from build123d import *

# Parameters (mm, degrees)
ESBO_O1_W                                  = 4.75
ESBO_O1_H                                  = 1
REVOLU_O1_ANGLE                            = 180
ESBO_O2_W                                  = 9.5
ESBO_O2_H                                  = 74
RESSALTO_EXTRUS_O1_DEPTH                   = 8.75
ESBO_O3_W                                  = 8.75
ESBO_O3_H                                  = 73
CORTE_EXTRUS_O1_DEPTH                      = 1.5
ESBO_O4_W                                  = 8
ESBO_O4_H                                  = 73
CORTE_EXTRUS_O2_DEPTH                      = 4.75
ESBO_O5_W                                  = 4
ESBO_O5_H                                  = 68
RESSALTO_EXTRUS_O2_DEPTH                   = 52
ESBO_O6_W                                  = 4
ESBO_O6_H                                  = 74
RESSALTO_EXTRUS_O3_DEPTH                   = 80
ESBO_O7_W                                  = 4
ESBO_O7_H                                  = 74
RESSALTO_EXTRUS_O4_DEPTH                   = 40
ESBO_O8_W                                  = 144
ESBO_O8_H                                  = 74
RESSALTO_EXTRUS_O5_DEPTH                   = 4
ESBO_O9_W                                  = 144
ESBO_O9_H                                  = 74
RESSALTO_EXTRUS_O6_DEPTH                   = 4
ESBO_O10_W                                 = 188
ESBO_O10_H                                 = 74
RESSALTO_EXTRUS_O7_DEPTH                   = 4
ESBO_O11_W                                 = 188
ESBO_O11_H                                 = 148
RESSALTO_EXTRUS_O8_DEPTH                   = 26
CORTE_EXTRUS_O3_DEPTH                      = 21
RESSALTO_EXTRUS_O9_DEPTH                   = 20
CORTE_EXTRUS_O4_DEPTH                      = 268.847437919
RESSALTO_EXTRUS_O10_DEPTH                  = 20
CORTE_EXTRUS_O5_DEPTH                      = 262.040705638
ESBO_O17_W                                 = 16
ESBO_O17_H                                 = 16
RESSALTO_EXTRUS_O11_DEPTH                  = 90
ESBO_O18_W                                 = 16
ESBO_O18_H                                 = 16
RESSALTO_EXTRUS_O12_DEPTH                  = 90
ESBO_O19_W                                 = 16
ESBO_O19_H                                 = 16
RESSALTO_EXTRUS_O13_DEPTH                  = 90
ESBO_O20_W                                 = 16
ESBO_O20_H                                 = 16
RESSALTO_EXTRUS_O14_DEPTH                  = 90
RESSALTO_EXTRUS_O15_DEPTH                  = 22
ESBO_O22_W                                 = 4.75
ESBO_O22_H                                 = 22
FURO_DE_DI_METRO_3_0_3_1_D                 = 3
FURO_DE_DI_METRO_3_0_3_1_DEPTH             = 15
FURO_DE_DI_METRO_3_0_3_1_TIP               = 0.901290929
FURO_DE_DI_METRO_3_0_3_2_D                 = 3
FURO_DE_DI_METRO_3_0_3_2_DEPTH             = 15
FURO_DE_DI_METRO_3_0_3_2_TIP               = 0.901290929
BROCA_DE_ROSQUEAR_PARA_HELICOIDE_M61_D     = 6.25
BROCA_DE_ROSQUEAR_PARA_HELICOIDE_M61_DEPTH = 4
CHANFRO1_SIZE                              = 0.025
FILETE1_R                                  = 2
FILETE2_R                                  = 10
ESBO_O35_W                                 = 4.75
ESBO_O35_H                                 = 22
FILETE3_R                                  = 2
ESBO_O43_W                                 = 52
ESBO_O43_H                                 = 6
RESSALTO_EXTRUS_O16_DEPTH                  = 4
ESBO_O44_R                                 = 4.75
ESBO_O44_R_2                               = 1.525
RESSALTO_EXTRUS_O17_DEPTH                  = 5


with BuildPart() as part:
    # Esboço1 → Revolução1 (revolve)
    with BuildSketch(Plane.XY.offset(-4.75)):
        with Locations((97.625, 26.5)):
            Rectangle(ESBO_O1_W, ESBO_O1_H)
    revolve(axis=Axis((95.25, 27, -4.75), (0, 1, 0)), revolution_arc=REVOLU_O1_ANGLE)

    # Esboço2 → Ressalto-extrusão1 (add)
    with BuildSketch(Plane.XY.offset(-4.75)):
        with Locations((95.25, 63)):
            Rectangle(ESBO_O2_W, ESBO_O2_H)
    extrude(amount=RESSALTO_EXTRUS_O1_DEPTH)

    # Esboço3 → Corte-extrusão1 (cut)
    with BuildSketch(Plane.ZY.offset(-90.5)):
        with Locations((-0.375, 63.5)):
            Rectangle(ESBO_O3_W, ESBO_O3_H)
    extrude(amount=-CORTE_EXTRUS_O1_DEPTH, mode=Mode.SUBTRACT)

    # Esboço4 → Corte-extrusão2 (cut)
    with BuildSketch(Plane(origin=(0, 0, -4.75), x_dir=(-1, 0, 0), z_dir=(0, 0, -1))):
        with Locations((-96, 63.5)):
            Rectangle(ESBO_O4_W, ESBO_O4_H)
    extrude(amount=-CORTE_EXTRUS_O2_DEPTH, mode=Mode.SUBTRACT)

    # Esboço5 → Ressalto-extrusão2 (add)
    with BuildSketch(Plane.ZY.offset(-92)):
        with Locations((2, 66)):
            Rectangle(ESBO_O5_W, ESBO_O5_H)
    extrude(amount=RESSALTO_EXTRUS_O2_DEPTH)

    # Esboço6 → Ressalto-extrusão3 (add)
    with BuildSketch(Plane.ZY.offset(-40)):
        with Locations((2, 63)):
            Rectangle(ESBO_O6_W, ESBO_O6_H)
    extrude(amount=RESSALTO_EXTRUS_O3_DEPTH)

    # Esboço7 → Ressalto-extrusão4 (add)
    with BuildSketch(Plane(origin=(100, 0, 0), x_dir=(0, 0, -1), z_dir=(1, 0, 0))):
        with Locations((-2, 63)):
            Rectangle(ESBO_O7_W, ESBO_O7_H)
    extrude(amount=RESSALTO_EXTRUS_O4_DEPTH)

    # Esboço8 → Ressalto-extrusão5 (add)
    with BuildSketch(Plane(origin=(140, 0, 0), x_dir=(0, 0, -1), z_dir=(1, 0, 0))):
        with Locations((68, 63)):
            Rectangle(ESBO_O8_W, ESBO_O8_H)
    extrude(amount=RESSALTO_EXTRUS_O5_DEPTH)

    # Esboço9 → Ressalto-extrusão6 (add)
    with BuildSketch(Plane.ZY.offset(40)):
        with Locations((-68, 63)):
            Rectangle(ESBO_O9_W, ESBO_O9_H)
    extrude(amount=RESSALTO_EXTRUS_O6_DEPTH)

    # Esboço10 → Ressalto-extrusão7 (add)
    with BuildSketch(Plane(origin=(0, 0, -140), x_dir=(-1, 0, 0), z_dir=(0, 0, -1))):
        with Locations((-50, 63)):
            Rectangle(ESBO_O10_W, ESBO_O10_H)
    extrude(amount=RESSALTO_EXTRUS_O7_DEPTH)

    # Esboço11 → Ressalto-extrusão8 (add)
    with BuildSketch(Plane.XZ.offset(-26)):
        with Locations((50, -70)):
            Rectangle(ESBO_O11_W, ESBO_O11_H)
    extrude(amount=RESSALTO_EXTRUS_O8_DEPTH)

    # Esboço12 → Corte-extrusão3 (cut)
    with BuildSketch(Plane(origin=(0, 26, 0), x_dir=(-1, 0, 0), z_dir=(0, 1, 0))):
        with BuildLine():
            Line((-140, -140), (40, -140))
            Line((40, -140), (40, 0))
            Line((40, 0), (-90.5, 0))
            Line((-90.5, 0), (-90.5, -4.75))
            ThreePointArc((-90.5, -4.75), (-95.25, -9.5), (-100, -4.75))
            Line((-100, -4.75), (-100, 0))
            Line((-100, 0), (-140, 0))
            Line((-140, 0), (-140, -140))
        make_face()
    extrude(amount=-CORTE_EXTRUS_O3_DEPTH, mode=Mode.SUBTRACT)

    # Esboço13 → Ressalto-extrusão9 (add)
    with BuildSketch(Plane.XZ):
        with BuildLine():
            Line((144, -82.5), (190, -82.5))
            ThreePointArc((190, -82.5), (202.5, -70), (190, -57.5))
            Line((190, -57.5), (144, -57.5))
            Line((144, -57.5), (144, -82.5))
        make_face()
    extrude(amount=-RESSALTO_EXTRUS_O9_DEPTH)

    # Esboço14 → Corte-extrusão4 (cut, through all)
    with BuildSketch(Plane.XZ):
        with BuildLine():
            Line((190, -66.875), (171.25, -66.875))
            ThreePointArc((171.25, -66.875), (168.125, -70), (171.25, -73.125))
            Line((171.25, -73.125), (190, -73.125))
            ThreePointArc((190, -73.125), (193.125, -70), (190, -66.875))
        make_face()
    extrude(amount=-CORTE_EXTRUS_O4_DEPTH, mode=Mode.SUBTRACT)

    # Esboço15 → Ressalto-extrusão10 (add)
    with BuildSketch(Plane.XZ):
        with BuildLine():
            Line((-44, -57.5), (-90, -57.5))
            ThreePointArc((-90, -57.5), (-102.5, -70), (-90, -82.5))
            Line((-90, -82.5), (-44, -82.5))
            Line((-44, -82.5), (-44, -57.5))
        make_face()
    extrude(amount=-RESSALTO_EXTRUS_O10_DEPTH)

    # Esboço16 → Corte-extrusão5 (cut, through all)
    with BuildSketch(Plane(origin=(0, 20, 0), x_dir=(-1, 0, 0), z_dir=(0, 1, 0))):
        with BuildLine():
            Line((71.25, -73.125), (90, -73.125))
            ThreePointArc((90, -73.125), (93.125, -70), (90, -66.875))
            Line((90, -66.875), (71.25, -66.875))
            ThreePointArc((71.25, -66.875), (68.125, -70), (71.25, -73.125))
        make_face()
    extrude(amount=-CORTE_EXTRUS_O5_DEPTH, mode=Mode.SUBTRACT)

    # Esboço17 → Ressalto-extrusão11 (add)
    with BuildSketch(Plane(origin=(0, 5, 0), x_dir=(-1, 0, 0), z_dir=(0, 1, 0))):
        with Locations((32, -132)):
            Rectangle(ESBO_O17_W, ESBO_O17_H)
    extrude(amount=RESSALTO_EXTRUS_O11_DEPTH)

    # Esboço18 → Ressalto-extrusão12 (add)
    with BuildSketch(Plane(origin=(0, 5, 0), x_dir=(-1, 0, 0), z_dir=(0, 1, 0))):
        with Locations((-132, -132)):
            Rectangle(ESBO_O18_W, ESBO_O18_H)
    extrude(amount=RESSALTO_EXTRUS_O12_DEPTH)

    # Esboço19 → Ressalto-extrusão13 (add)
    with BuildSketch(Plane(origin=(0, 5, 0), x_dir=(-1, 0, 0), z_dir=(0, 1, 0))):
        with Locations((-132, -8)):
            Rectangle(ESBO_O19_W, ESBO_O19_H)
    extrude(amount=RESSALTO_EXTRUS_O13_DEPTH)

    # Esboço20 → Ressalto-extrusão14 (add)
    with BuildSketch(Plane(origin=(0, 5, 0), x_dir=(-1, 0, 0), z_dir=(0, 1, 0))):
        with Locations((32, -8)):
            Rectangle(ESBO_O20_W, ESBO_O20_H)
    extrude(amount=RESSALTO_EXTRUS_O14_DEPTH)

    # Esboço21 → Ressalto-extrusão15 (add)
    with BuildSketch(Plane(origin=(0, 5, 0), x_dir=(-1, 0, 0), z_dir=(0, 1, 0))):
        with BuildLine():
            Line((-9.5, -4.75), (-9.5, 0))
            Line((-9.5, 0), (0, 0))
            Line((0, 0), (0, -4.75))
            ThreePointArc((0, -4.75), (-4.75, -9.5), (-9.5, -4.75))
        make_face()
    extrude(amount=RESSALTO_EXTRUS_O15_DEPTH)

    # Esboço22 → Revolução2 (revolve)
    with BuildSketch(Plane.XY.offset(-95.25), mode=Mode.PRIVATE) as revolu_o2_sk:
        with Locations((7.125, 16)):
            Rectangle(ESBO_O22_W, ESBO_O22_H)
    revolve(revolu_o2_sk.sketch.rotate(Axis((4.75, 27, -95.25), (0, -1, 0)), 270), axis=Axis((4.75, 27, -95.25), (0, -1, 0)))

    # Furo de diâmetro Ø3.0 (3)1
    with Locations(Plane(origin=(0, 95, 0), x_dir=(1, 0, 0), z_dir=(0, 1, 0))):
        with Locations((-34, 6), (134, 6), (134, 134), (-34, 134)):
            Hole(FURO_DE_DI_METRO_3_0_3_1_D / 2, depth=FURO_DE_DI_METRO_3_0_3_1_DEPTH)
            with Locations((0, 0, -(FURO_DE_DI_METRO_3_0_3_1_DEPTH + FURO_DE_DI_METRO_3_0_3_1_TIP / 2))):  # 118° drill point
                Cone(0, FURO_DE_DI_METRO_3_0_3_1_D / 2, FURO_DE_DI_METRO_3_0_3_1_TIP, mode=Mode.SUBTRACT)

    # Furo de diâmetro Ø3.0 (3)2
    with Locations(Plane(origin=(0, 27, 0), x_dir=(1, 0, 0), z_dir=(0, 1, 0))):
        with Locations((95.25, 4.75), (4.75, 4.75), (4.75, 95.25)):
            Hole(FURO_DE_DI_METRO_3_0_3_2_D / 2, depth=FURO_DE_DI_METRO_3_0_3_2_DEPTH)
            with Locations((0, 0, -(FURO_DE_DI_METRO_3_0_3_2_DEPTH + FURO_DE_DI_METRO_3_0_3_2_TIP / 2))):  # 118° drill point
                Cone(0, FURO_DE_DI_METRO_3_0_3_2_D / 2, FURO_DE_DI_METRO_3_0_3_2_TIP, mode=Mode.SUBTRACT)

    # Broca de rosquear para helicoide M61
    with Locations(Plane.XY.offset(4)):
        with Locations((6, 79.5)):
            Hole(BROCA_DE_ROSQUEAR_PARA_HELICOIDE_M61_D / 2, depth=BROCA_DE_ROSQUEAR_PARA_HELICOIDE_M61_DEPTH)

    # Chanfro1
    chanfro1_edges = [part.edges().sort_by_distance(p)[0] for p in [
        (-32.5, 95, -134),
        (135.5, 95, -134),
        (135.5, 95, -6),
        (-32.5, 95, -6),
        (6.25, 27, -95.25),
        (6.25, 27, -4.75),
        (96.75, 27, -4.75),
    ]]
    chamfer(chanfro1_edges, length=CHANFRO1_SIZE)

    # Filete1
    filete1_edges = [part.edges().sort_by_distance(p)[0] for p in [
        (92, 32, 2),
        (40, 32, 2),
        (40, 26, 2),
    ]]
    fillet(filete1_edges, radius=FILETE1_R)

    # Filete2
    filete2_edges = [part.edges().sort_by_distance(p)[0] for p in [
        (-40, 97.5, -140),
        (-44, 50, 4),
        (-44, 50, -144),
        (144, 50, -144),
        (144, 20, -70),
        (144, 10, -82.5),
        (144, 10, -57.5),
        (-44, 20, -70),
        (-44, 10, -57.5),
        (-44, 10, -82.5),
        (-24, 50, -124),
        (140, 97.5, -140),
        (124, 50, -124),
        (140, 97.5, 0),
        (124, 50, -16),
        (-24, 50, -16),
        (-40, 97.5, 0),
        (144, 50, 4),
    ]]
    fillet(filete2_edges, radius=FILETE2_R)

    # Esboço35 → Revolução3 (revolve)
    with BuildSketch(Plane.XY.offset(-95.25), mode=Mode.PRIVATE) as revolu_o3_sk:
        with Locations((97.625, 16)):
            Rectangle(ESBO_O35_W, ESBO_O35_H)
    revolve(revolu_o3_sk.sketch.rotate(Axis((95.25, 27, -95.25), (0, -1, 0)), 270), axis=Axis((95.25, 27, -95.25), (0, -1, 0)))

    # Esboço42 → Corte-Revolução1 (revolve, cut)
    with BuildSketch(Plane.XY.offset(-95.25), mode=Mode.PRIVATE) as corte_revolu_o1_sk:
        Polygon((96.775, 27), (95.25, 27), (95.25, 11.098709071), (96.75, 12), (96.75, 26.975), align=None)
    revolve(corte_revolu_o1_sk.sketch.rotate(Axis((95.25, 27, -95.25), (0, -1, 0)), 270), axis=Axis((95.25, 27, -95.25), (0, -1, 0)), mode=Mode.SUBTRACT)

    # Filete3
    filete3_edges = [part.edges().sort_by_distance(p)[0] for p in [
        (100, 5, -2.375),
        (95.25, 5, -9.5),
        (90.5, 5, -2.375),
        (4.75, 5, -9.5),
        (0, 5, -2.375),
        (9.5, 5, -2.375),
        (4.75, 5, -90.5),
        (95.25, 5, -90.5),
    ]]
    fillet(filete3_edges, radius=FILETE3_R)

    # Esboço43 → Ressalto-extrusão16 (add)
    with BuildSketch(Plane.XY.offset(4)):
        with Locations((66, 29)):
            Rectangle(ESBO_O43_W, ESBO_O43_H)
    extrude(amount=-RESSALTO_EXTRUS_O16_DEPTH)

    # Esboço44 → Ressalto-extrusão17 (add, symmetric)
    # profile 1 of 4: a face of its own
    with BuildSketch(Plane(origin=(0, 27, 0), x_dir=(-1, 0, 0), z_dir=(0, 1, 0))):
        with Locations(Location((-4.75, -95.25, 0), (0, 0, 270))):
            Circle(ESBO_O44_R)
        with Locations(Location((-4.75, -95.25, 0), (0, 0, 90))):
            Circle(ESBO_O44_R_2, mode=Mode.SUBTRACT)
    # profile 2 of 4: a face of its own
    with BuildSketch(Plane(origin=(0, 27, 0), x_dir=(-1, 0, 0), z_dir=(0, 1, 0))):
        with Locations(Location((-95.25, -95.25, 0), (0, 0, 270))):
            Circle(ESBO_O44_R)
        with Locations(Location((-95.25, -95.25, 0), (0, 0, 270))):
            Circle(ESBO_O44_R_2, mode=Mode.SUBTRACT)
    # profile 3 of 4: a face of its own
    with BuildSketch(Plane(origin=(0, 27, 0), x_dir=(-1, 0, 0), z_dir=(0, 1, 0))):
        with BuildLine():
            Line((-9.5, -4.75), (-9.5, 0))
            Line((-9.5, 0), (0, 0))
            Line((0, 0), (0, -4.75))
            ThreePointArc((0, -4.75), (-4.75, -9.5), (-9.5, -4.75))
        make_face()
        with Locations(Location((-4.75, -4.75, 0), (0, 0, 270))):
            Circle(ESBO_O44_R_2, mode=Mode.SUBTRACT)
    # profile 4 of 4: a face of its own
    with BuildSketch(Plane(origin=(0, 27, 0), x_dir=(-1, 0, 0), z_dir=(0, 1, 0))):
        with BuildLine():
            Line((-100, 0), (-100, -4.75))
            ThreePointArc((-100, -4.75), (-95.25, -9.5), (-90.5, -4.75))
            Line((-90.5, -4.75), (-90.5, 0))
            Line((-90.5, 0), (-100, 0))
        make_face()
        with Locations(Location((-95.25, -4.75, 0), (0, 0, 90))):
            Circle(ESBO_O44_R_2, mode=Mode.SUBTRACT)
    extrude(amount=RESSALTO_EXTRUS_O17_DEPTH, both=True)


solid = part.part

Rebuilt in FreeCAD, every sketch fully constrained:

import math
import FreeCAD as App
import Part
import Sketcher

V = App.Vector
Q = App.Units.Quantity


def edges_at(feature, points):
    """Names of the edges that pass closest to the given points."""
    edges = feature.Shape.Edges
    near = lambda p: min(range(len(edges)), key=lambda i: edges[i].distToShape(Part.Vertex(*p))[0])
    return sorted({f"Edge{near(p) + 1}" for p in points})

doc = App.newDocument("Part")
body = doc.addObject("PartDesign::Body", "Body")

sketch1 = body.newObject("Sketcher::SketchObject", "Sketch")
sketch1.AttachmentSupport = (doc.getObject("XY_Plane"), [""])
sketch1.MapMode = "FlatFace"
sketch1.AttachmentOffset = App.Placement(V(0, 0, -4.75), App.Rotation())
sketch1.addGeometry([
    Part.LineSegment(V(95.2, 27, 0), V(95.2, 26, 0)),
    Part.LineSegment(V(95.2, 26, 0), V(100, 26, 0)),
    Part.LineSegment(V(100, 26, 0), V(100, 27, 0)),
    Part.LineSegment(V(100, 27, 0), V(95.2, 27, 0)),
], False)
sketch1.addGeometry(Part.LineSegment(V(95.2, 26, 0), V(95.2, 27, 0)), True)
sketch1.addConstraint([
    Sketcher.Constraint("Coincident", 0, 2, 1, 1),
    Sketcher.Constraint("Coincident", 1, 2, 2, 1),
    Sketcher.Constraint("Coincident", 2, 2, 3, 1),
    Sketcher.Constraint("Coincident", 3, 2, 0, 1),
    Sketcher.Constraint("Vertical", 0),
    Sketcher.Constraint("Horizontal", 1),
    Sketcher.Constraint("Vertical", 2),
    Sketcher.Constraint("Horizontal", 3),
    Sketcher.Constraint("Vertical", 4),
    Sketcher.Constraint("Coincident", 4, 1, 0, 2),
    Sketcher.Constraint("Horizontal", 2, 2, 4, 2),
    Sketcher.Constraint("DistanceY", 0, 2, 0, 1, 1.0),
    Sketcher.Constraint("DistanceY", -1, 1, 0, 2, 26.0),
    Sketcher.Constraint("DistanceX", -1, 1, 1, 2, 100.0),
    Sketcher.Constraint("DistanceX", 1, 1, 1, 2, 4.75),
])
revolution = body.newObject("PartDesign::Revolution", "Revolution")
revolution.Profile = sketch1
revolution.ReferenceAxis = (sketch1, ["Axis0"])
revolution.Angle = 180

sketch2 = body.newObject("Sketcher::SketchObject", "Sketch001")
sketch2.AttachmentSupport = (doc.getObject("XY_Plane"), [""])
sketch2.MapMode = "FlatFace"
sketch2.AttachmentOffset = App.Placement(V(0, 0, -4.75), App.Rotation())
sketch2.addGeometry([
    Part.LineSegment(V(90, 100, 0), V(90, 26, 0)),
    Part.LineSegment(V(90, 26, 0), V(100, 26, 0)),
    Part.LineSegment(V(100, 26, 0), V(100, 100, 0)),
    Part.LineSegment(V(100, 100, 0), V(90, 100, 0)),
], False)
sketch2.addConstraint([
    Sketcher.Constraint("Coincident", 0, 2, 1, 1),
    Sketcher.Constraint("Coincident", 1, 2, 2, 1),
    Sketcher.Constraint("Coincident", 2, 2, 3, 1),
    Sketcher.Constraint("Coincident", 3, 2, 0, 1),
    Sketcher.Constraint("Vertical", 0),
    Sketcher.Constraint("Horizontal", 1),
    Sketcher.Constraint("Vertical", 2),
    Sketcher.Constraint("Horizontal", 3),
    Sketcher.Constraint("DistanceY", 0, 2, 0, 1, 74.0),
    Sketcher.Constraint("DistanceX", 1, 1, 1, 2, 9.5),
    Sketcher.Constraint("DistanceY", -1, 1, 0, 2, 26.0),
    Sketcher.Constraint("DistanceX", -1, 1, 1, 2, 100.0),
])
pad1 = body.newObject("PartDesign::Pad", "Pad")
pad1.Profile = sketch2
pad1.Length = 8.75

sketch3 = body.newObject("Sketcher::SketchObject", "Sketch002")
sketch3.AttachmentSupport = (doc.getObject("YZ_Plane"), [""])
sketch3.MapMode = "FlatFace"
sketch3.AttachmentOffset = App.Placement(V(0, 0, 90.5), App.Rotation())
sketch3.addGeometry([
    Part.LineSegment(V(100, -5, 0), V(27, -5, 0)),
    Part.LineSegment(V(27, -5, 0), V(27, 4, 0)),
    Part.LineSegment(V(27, 4, 0), V(100, 4, 0)),
    Part.LineSegment(V(100, 4, 0), V(100, -5, 0)),
], False)
sketch3.addConstraint([
    Sketcher.Constraint("Coincident", 0, 2, 1, 1),
    Sketcher.Constraint("Coincident", 1, 2, 2, 1),
    Sketcher.Constraint("Coincident", 2, 2, 3, 1),
    Sketcher.Constraint("Coincident", 3, 2, 0, 1),
    Sketcher.Constraint("Horizontal", 0),
    Sketcher.Constraint("Vertical", 1),
    Sketcher.Constraint("Horizontal", 2),
    Sketcher.Constraint("Vertical", 3),
    Sketcher.Constraint("DistanceX", 0, 2, 0, 1, 73.0),
    Sketcher.Constraint("DistanceX", -1, 1, 0, 2, 27.0),
    Sketcher.Constraint("DistanceY", -1, 1, 1, 2, 4.0),
    Sketcher.Constraint("DistanceY", 1, 1, 1, 2, 8.75),
])
pocket1 = body.newObject("PartDesign::Pocket", "Pocket")
pocket1.Profile = sketch3
pocket1.Length = 1.5
pocket1.Reversed = True

sketch4 = body.newObject("Sketcher::SketchObject", "Sketch003")
sketch4.AttachmentSupport = (doc.getObject("XY_Plane"), [""])
sketch4.MapMode = "FlatFace"
sketch4.AttachmentOffset = App.Placement(V(0, 0, -4.75), App.Rotation())
sketch4.addGeometry([
    Part.LineSegment(V(100, 100, 0), V(100, 27, 0)),
    Part.LineSegment(V(100, 27, 0), V(92, 27, 0)),
    Part.LineSegment(V(92, 27, 0), V(92, 100, 0)),
    Part.LineSegment(V(92, 100, 0), V(100, 100, 0)),
], False)
sketch4.addConstraint([
    Sketcher.Constraint("Coincident", 0, 2, 1, 1),
    Sketcher.Constraint("Coincident", 1, 2, 2, 1),
    Sketcher.Constraint("Coincident", 2, 2, 3, 1),
    Sketcher.Constraint("Coincident", 3, 2, 0, 1),
    Sketcher.Constraint("Vertical", 0),
    Sketcher.Constraint("Horizontal", 1),
    Sketcher.Constraint("Vertical", 2),
    Sketcher.Constraint("Horizontal", 3),
    Sketcher.Constraint("DistanceX", 1, 2, 1, 1, 8.0),
    Sketcher.Constraint("DistanceY", 0, 2, 0, 1, 73.0),
    Sketcher.Constraint("DistanceX", -1, 1, 0, 2, 100.0),
    Sketcher.Constraint("DistanceY", -1, 1, 0, 2, 27.0),
])
pocket2 = body.newObject("PartDesign::Pocket", "Pocket001")
pocket2.Profile = sketch4
pocket2.Length = 4.75
pocket2.Reversed = True

sketch5 = body.newObject("Sketcher::SketchObject", "Sketch004")
sketch5.AttachmentSupport = (doc.getObject("YZ_Plane"), [""])
sketch5.MapMode = "FlatFace"
sketch5.AttachmentOffset = App.Placement(V(0, 0, 92), App.Rotation())
sketch5.addGeometry([
    Part.LineSegment(V(100, 0, 0), V(32, 0, 0)),
    Part.LineSegment(V(32, 0, 0), V(32, 4, 0)),
    Part.LineSegment(V(32, 4, 0), V(100, 4, 0)),
    Part.LineSegment(V(100, 4, 0), V(100, 0, 0)),
], False)
sketch5.addConstraint([
    Sketcher.Constraint("Coincident", 0, 2, 1, 1),
    Sketcher.Constraint("Coincident", 1, 2, 2, 1),
    Sketcher.Constraint("Coincident", 2, 2, 3, 1),
    Sketcher.Constraint("Coincident", 3, 2, 0, 1),
    Sketcher.Constraint("Horizontal", 0),
    Sketcher.Constraint("Vertical", 1),
    Sketcher.Constraint("Horizontal", 2),
    Sketcher.Constraint("Vertical", 3),
    Sketcher.Constraint("PointOnObject", 0, 2, -1),
    Sketcher.Constraint("DistanceX", 0, 2, 0, 1, 68.0),
    Sketcher.Constraint("DistanceY", 1, 1, 1, 2, 4.0),
    Sketcher.Constraint("DistanceX", -1, 1, 0, 2, 32.0),
])
pad2 = body.newObject("PartDesign::Pad", "Pad001")
pad2.Profile = sketch5
pad2.Length = 52
pad2.Reversed = True

sketch6 = body.newObject("Sketcher::SketchObject", "Sketch005")
sketch6.AttachmentSupport = (doc.getObject("YZ_Plane"), [""])
sketch6.MapMode = "FlatFace"
sketch6.AttachmentOffset = App.Placement(V(0, 0, 40), App.Rotation())
sketch6.addGeometry([
    Part.LineSegment(V(100, 0, 0), V(26, 0, 0)),
    Part.LineSegment(V(26, 0, 0), V(26, 4, 0)),
    Part.LineSegment(V(26, 4, 0), V(100, 4, 0)),
    Part.LineSegment(V(100, 4, 0), V(100, 0, 0)),
], False)
sketch6.addConstraint([
    Sketcher.Constraint("Coincident", 0, 2, 1, 1),
    Sketcher.Constraint("Coincident", 1, 2, 2, 1),
    Sketcher.Constraint("Coincident", 2, 2, 3, 1),
    Sketcher.Constraint("Coincident", 3, 2, 0, 1),
    Sketcher.Constraint("Horizontal", 0),
    Sketcher.Constraint("Vertical", 1),
    Sketcher.Constraint("Horizontal", 2),
    Sketcher.Constraint("Vertical", 3),
    Sketcher.Constraint("PointOnObject", 0, 2, -1),
    Sketcher.Constraint("DistanceX", 0, 2, 0, 1, 74.0),
    Sketcher.Constraint("DistanceY", 1, 1, 1, 2, 4.0),
    Sketcher.Constraint("DistanceX", -1, 1, 0, 2, 26.0),
])
pad3 = body.newObject("PartDesign::Pad", "Pad002")
pad3.Profile = sketch6
pad3.Length = 80
pad3.Reversed = True

sketch7 = body.newObject("Sketcher::SketchObject", "Sketch006")
sketch7.AttachmentSupport = (doc.getObject("YZ_Plane"), [""])
sketch7.MapMode = "FlatFace"
sketch7.AttachmentOffset = App.Placement(V(0, 0, 100), App.Rotation())
sketch7.addGeometry([
    Part.LineSegment(V(100, 4, 0), V(26, 4, 0)),
    Part.LineSegment(V(26, 4, 0), V(26, 0, 0)),
    Part.LineSegment(V(26, 0, 0), V(100, 0, 0)),
    Part.LineSegment(V(100, 0, 0), V(100, 4, 0)),
], False)
sketch7.addConstraint([
    Sketcher.Constraint("Coincident", 0, 2, 1, 1),
    Sketcher.Constraint("Coincident", 1, 2, 2, 1),
    Sketcher.Constraint("Coincident", 2, 2, 3, 1),
    Sketcher.Constraint("Coincident", 3, 2, 0, 1),
    Sketcher.Constraint("Horizontal", 0),
    Sketcher.Constraint("Vertical", 1),
    Sketcher.Constraint("Horizontal", 2),
    Sketcher.Constraint("Vertical", 3),
    Sketcher.Constraint("PointOnObject", 1, 2, -1),
    Sketcher.Constraint("DistanceX", 0, 2, 0, 1, 74.0),
    Sketcher.Constraint("DistanceY", 1, 2, 1, 1, 4.0),
    Sketcher.Constraint("DistanceX", -1, 1, 0, 2, 26.0),
])
pad4 = body.newObject("PartDesign::Pad", "Pad003")
pad4.Profile = sketch7
pad4.Length = 40

sketch8 = body.newObject("Sketcher::SketchObject", "Sketch007")
sketch8.AttachmentSupport = (doc.getObject("YZ_Plane"), [""])
sketch8.MapMode = "FlatFace"
sketch8.AttachmentOffset = App.Placement(V(0, 0, 140), App.Rotation())
sketch8.addGeometry([
    Part.LineSegment(V(100, 4, 0), V(26, 4, 0)),
    Part.LineSegment(V(26, 4, 0), V(26, -140, 0)),
    Part.LineSegment(V(26, -140, 0), V(100, -140, 0)),
    Part.LineSegment(V(100, -140, 0), V(100, 4, 0)),
], False)
sketch8.addConstraint([
    Sketcher.Constraint("Coincident", 0, 2, 1, 1),
    Sketcher.Constraint("Coincident", 1, 2, 2, 1),
    Sketcher.Constraint("Coincident", 2, 2, 3, 1),
    Sketcher.Constraint("Coincident", 3, 2, 0, 1),
    Sketcher.Constraint("Horizontal", 0),
    Sketcher.Constraint("Vertical", 1),
    Sketcher.Constraint("Horizontal", 2),
    Sketcher.Constraint("Vertical", 3),
    Sketcher.Constraint("DistanceX", 0, 2, 0, 1, 74.0),
    Sketcher.Constraint("DistanceY", 1, 2, 1, 1, 144.0),
    Sketcher.Constraint("DistanceX", -1, 1, 0, 2, 26.0),
    Sketcher.Constraint("DistanceY", -1, 1, 0, 2, 4.0),
])
pad5 = body.newObject("PartDesign::Pad", "Pad004")
pad5.Profile = sketch8
pad5.Length = 4

sketch9 = body.newObject("Sketcher::SketchObject", "Sketch008")
sketch9.AttachmentSupport = (doc.getObject("YZ_Plane"), [""])
sketch9.MapMode = "FlatFace"
sketch9.AttachmentOffset = App.Placement(V(0, 0, -40), App.Rotation())
sketch9.addGeometry([
    Part.LineSegment(V(100, -140, 0), V(26, -140, 0)),
    Part.LineSegment(V(26, -140, 0), V(26, 4, 0)),
    Part.LineSegment(V(26, 4, 0), V(100, 4, 0)),
    Part.LineSegment(V(100, 4, 0), V(100, -140, 0)),
], False)
sketch9.addConstraint([
    Sketcher.Constraint("Coincident", 0, 2, 1, 1),
    Sketcher.Constraint("Coincident", 1, 2, 2, 1),
    Sketcher.Constraint("Coincident", 2, 2, 3, 1),
    Sketcher.Constraint("Coincident", 3, 2, 0, 1),
    Sketcher.Constraint("Horizontal", 0),
    Sketcher.Constraint("Vertical", 1),
    Sketcher.Constraint("Horizontal", 2),
    Sketcher.Constraint("Vertical", 3),
    Sketcher.Constraint("DistanceX", 0, 2, 0, 1, 74.0),
    Sketcher.Constraint("DistanceY", 1, 1, 1, 2, 144.0),
    Sketcher.Constraint("DistanceX", -1, 1, 0, 2, 26.0),
    Sketcher.Constraint("DistanceY", 0, 2, -1, 1, 140.0),
])
pad6 = body.newObject("PartDesign::Pad", "Pad005")
pad6.Profile = sketch9
pad6.Length = 4
pad6.Reversed = True

sketch10 = body.newObject("Sketcher::SketchObject", "Sketch009")
sketch10.AttachmentSupport = (doc.getObject("XY_Plane"), [""])
sketch10.MapMode = "FlatFace"
sketch10.AttachmentOffset = App.Placement(V(0, 0, -140), App.Rotation())
sketch10.addGeometry([
    Part.LineSegment(V(144, 100, 0), V(144, 26, 0)),
    Part.LineSegment(V(144, 26, 0), V(-44, 26, 0)),
    Part.LineSegment(V(-44, 26, 0), V(-44, 100, 0)),
    Part.LineSegment(V(-44, 100, 0), V(144, 100, 0)),
], False)
sketch10.addConstraint([
    Sketcher.Constraint("Coincident", 0, 2, 1, 1),
    Sketcher.Constraint("Coincident", 1, 2, 2, 1),
    Sketcher.Constraint("Coincident", 2, 2, 3, 1),
    Sketcher.Constraint("Coincident", 3, 2, 0, 1),
    Sketcher.Constraint("Vertical", 0),
    Sketcher.Constraint("Horizontal", 1),
    Sketcher.Constraint("Vertical", 2),
    Sketcher.Constraint("Horizontal", 3),
    Sketcher.Constraint("DistanceX", 1, 2, 1, 1, 188.0),
    Sketcher.Constraint("DistanceY", 0, 2, 0, 1, 74.0),
    Sketcher.Constraint("DistanceX", -1, 1, 0, 2, 144.0),
    Sketcher.Constraint("DistanceY", -1, 1, 0, 2, 26.0),
])
pad7 = body.newObject("PartDesign::Pad", "Pad006")
pad7.Profile = sketch10
pad7.Length = 4
pad7.Reversed = True

sketch11 = body.newObject("Sketcher::SketchObject", "Sketch010")
sketch11.AttachmentSupport = (doc.getObject("XZ_Plane"), [""])
sketch11.MapMode = "FlatFace"
sketch11.AttachmentOffset = App.Placement(V(0, 0, -26), App.Rotation())
sketch11.addGeometry([
    Part.LineSegment(V(-44, 4, 0), V(-44, -144, 0)),
    Part.LineSegment(V(-44, -144, 0), V(144, -144, 0)),
    Part.LineSegment(V(144, -144, 0), V(144, 4, 0)),
    Part.LineSegment(V(144, 4, 0), V(-44, 4, 0)),
], False)
sketch11.addConstraint([
    Sketcher.Constraint("Coincident", 0, 2, 1, 1),
    Sketcher.Constraint("Coincident", 1, 2, 2, 1),
    Sketcher.Constraint("Coincident", 2, 2, 3, 1),
    Sketcher.Constraint("Coincident", 3, 2, 0, 1),
    Sketcher.Constraint("Vertical", 0),
    Sketcher.Constraint("Horizontal", 1),
    Sketcher.Constraint("Vertical", 2),
    Sketcher.Constraint("Horizontal", 3),
    Sketcher.Constraint("DistanceX", 1, 1, 1, 2, 188.0),
    Sketcher.Constraint("DistanceY", 0, 2, 0, 1, 148.0),
    Sketcher.Constraint("DistanceX", 0, 2, -1, 1, 44.0),
    Sketcher.Constraint("DistanceY", 0, 2, -1, 1, 144.0),
])
pad8 = body.newObject("PartDesign::Pad", "Pad007")
pad8.Profile = sketch11
pad8.Length = 26

sketch12 = body.newObject("Sketcher::SketchObject", "Sketch011")
sketch12.AttachmentSupport = (doc.getObject("XZ_Plane"), [""])
sketch12.MapMode = "FlatFace"
sketch12.AttachmentOffset = App.Placement(V(0, 0, -26), App.Rotation())
sketch12.addGeometry([
    Part.LineSegment(V(140, -140, 0), V(-40, -140, 0)),
    Part.LineSegment(V(-40, -140, 0), V(-40, 0, 0)),
    Part.LineSegment(V(-40, 0, 0), V(90.5, 0, 0)),
    Part.LineSegment(V(90.5, 0, 0), V(90.5, -4.8, 0)),
    Part.ArcOfCircle(Part.Circle(V(95.2, -4.8, 0), V(0, 0, 1), 4.8), math.radians(180), math.radians(360)),
    Part.LineSegment(V(100, -4.8, 0), V(100, 0, 0)),
    Part.LineSegment(V(100, 0, 0), V(140, 0, 0)),
    Part.LineSegment(V(140, 0, 0), V(140, -140, 0)),
], False)
sketch12.addConstraint([
    Sketcher.Constraint("Coincident", 0, 2, 1, 1),
    Sketcher.Constraint("Coincident", 1, 2, 2, 1),
    Sketcher.Constraint("Coincident", 2, 2, 3, 1),
    Sketcher.Constraint("Tangent", 3, 2, 4, 1),
    Sketcher.Constraint("Tangent", 4, 2, 5, 1),
    Sketcher.Constraint("Coincident", 5, 2, 6, 1),
    Sketcher.Constraint("Coincident", 6, 2, 7, 1),
    Sketcher.Constraint("Coincident", 7, 2, 0, 1),
    Sketcher.Constraint("Horizontal", 0),
    Sketcher.Constraint("Vertical", 1),
    Sketcher.Constraint("Horizontal", 2),
    Sketcher.Constraint("Vertical", 3),
    Sketcher.Constraint("Vertical", 5),
    Sketcher.Constraint("Horizontal", 6),
    Sketcher.Constraint("Vertical", 7),
    Sketcher.Constraint("PointOnObject", 1, 2, -1),
    Sketcher.Constraint("PointOnObject", 5, 2, -1),
    Sketcher.Constraint("DistanceX", 0, 2, 0, 1, 180.0),
    Sketcher.Constraint("DistanceX", 6, 1, 6, 2, 40.0),
    Sketcher.Constraint("DistanceY", 1, 1, 1, 2, 140.0),
    Sketcher.Constraint("Radius", 4, 4.75),
    Sketcher.Constraint("DistanceX", 0, 2, -1, 1, 40.0),
    Sketcher.Constraint("DistanceY", 3, 2, 3, 1, 4.75),
])
pocket3 = body.newObject("PartDesign::Pocket", "Pocket002")
pocket3.Profile = sketch12
pocket3.Length = 21
pocket3.Reversed = True

sketch13 = body.newObject("Sketcher::SketchObject", "Sketch012")
sketch13.AttachmentSupport = (doc.getObject("XZ_Plane"), [""])
sketch13.MapMode = "FlatFace"
sketch13.addGeometry([
    Part.LineSegment(V(144, -82, 0), V(190, -82, 0)),
    Part.ArcOfCircle(Part.Circle(V(190, -70, 0), V(0, 0, 1), 12), math.radians(-90), math.radians(90)),
    Part.LineSegment(V(190, -58, 0), V(144, -58, 0)),
    Part.LineSegment(V(144, -58, 0), V(144, -82, 0)),
], False)
sketch13.addConstraint([
    Sketcher.Constraint("Tangent", 0, 2, 1, 1),
    Sketcher.Constraint("Tangent", 1, 2, 2, 1),
    Sketcher.Constraint("Coincident", 2, 2, 3, 1),
    Sketcher.Constraint("Coincident", 3, 2, 0, 1),
    Sketcher.Constraint("Horizontal", 0),
    Sketcher.Constraint("Horizontal", 2),
    Sketcher.Constraint("Vertical", 3),
    Sketcher.Constraint("Radius", 1, 12.5),
    Sketcher.Constraint("DistanceX", 0, 1, 0, 2, 46.0),
    Sketcher.Constraint("DistanceX", -1, 1, 1, 3, 190.0),
    Sketcher.Constraint("DistanceY", 1, 3, -1, 1, 70.0),
])
pad9 = body.newObject("PartDesign::Pad", "Pad008")
pad9.Profile = sketch13
pad9.Length = 20
pad9.Reversed = True

sketch14 = body.newObject("Sketcher::SketchObject", "Sketch013")
sketch14.AttachmentSupport = (doc.getObject("XZ_Plane"), [""])
sketch14.MapMode = "FlatFace"
sketch14.addGeometry([
    Part.LineSegment(V(190, -66.9, 0), V(171.2, -66.9, 0)),
    Part.ArcOfCircle(Part.Circle(V(171.2, -70, 0), V(0, 0, 1), 3.1), math.radians(90), math.radians(270)),
    Part.LineSegment(V(171.2, -73.1, 0), V(190, -73.1, 0)),
    Part.ArcOfCircle(Part.Circle(V(190, -70, 0), V(0, 0, 1), 3.1), math.radians(-90), math.radians(90)),
], False)
sketch14.addConstraint([
    Sketcher.Constraint("Tangent", 0, 2, 1, 1),
    Sketcher.Constraint("Tangent", 1, 2, 2, 1),
    Sketcher.Constraint("Tangent", 2, 2, 3, 1),
    Sketcher.Constraint("Tangent", 3, 2, 0, 1),
    Sketcher.Constraint("Horizontal", 0),
    Sketcher.Constraint("Horizontal", 2),
    Sketcher.Constraint("DistanceY", 1, 3, -1, 1, 70.0),
    Sketcher.Constraint("DistanceX", -1, 1, 3, 3, 190.0),
    Sketcher.Constraint("Radius", 1, 3.125),
    Sketcher.Constraint("DistanceX", 0, 2, 0, 1, 18.75),
])
pocket4 = body.newObject("PartDesign::Pocket", "Pocket003")
pocket4.Profile = sketch14
pocket4.Type = "ThroughAll"

sketch15 = body.newObject("Sketcher::SketchObject", "Sketch014")
sketch15.AttachmentSupport = (doc.getObject("XZ_Plane"), [""])
sketch15.MapMode = "FlatFace"
sketch15.addGeometry([
    Part.LineSegment(V(-44, -58, 0), V(-90, -58, 0)),
    Part.ArcOfCircle(Part.Circle(V(-90, -70, 0), V(0, 0, 1), 12), math.radians(90), math.radians(270)),
    Part.LineSegment(V(-90, -82, 0), V(-44, -82, 0)),
    Part.LineSegment(V(-44, -82, 0), V(-44, -58, 0)),
], False)
sketch15.addConstraint([
    Sketcher.Constraint("Tangent", 0, 2, 1, 1),
    Sketcher.Constraint("Tangent", 1, 2, 2, 1),
    Sketcher.Constraint("Coincident", 2, 2, 3, 1),
    Sketcher.Constraint("Coincident", 3, 2, 0, 1),
    Sketcher.Constraint("Horizontal", 0),
    Sketcher.Constraint("Horizontal", 2),
    Sketcher.Constraint("Vertical", 3),
    Sketcher.Constraint("Radius", 1, 12.5),
    Sketcher.Constraint("DistanceX", 0, 2, 0, 1, 46.0),
    Sketcher.Constraint("DistanceX", 1, 3, -1, 1, 90.0),
    Sketcher.Constraint("DistanceY", 1, 3, -1, 1, 70.0),
])
pad10 = body.newObject("PartDesign::Pad", "Pad009")
pad10.Profile = sketch15
pad10.Length = 20
pad10.Reversed = True

sketch16 = body.newObject("Sketcher::SketchObject", "Sketch015")
sketch16.AttachmentSupport = (doc.getObject("XZ_Plane"), [""])
sketch16.MapMode = "FlatFace"
sketch16.AttachmentOffset = App.Placement(V(0, 0, -20), App.Rotation())
sketch16.addGeometry([
    Part.LineSegment(V(-71.2, -73.1, 0), V(-90, -73.1, 0)),
    Part.ArcOfCircle(Part.Circle(V(-90, -70, 0), V(0, 0, 1), 3.1), math.radians(90), math.radians(270)),
    Part.LineSegment(V(-90, -66.9, 0), V(-71.2, -66.9, 0)),
    Part.ArcOfCircle(Part.Circle(V(-71.2, -70, 0), V(0, 0, 1), 3.1), math.radians(-90), math.radians(90)),
], False)
sketch16.addConstraint([
    Sketcher.Constraint("Tangent", 0, 2, 1, 2),
    Sketcher.Constraint("Tangent", 1, 1, 2, 1),
    Sketcher.Constraint("Tangent", 2, 2, 3, 2),
    Sketcher.Constraint("Tangent", 3, 1, 0, 1),
    Sketcher.Constraint("Horizontal", 0),
    Sketcher.Constraint("Horizontal", 2),
    Sketcher.Constraint("DistanceX", 1, 3, -1, 1, 90.0),
    Sketcher.Constraint("DistanceY", 1, 3, -1, 1, 70.0),
    Sketcher.Constraint("Radius", 1, 3.125),
    Sketcher.Constraint("DistanceX", 0, 2, 0, 1, 18.75),
])
pocket5 = body.newObject("PartDesign::Pocket", "Pocket004")
pocket5.Profile = sketch16
pocket5.Type = "ThroughAll"
pocket5.Reversed = True

sketch17 = body.newObject("Sketcher::SketchObject", "Sketch016")
sketch17.AttachmentSupport = (doc.getObject("XZ_Plane"), [""])
sketch17.MapMode = "FlatFace"
sketch17.AttachmentOffset = App.Placement(V(0, 0, -5), App.Rotation())
sketch17.addGeometry([
    Part.LineSegment(V(-24, -124, 0), V(-24, -140, 0)),
    Part.LineSegment(V(-24, -140, 0), V(-40, -140, 0)),
    Part.LineSegment(V(-40, -140, 0), V(-40, -124, 0)),
    Part.LineSegment(V(-40, -124, 0), V(-24, -124, 0)),
], False)
sketch17.addConstraint([
    Sketcher.Constraint("Coincident", 0, 2, 1, 1),
    Sketcher.Constraint("Coincident", 1, 2, 2, 1),
    Sketcher.Constraint("Coincident", 2, 2, 3, 1),
    Sketcher.Constraint("Coincident", 3, 2, 0, 1),
    Sketcher.Constraint("Vertical", 0),
    Sketcher.Constraint("Horizontal", 1),
    Sketcher.Constraint("Vertical", 2),
    Sketcher.Constraint("Horizontal", 3),
    Sketcher.Constraint("Equal", 3, 0),
    Sketcher.Constraint("DistanceX", 1, 2, 1, 1, 16.0),
    Sketcher.Constraint("DistanceX", 0, 2, -1, 1, 24.0),
    Sketcher.Constraint("DistanceY", 0, 2, -1, 1, 140.0),
])
pad11 = body.newObject("PartDesign::Pad", "Pad010")
pad11.Profile = sketch17
pad11.Length = 90
pad11.Reversed = True

sketch18 = body.newObject("Sketcher::SketchObject", "Sketch017")
sketch18.AttachmentSupport = (doc.getObject("XZ_Plane"), [""])
sketch18.MapMode = "FlatFace"
sketch18.AttachmentOffset = App.Placement(V(0, 0, -5), App.Rotation())
sketch18.addGeometry([
    Part.LineSegment(V(140, -124, 0), V(140, -140, 0)),
    Part.LineSegment(V(140, -140, 0), V(124, -140, 0)),
    Part.LineSegment(V(124, -140, 0), V(124, -124, 0)),
    Part.LineSegment(V(124, -124, 0), V(140, -124, 0)),
], False)
sketch18.addConstraint([
    Sketcher.Constraint("Coincident", 0, 2, 1, 1),
    Sketcher.Constraint("Coincident", 1, 2, 2, 1),
    Sketcher.Constraint("Coincident", 2, 2, 3, 1),
    Sketcher.Constraint("Coincident", 3, 2, 0, 1),
    Sketcher.Constraint("Vertical", 0),
    Sketcher.Constraint("Horizontal", 1),
    Sketcher.Constraint("Vertical", 2),
    Sketcher.Constraint("Horizontal", 3),
    Sketcher.Constraint("Equal", 3, 0),
    Sketcher.Constraint("DistanceX", 1, 2, 1, 1, 16.0),
    Sketcher.Constraint("DistanceX", -1, 1, 0, 2, 140.0),
    Sketcher.Constraint("DistanceY", 0, 2, -1, 1, 140.0),
])
pad12 = body.newObject("PartDesign::Pad", "Pad011")
pad12.Profile = sketch18
pad12.Length = 90
pad12.Reversed = True

sketch19 = body.newObject("Sketcher::SketchObject", "Sketch018")
sketch19.AttachmentSupport = (doc.getObject("XZ_Plane"), [""])
sketch19.MapMode = "FlatFace"
sketch19.AttachmentOffset = App.Placement(V(0, 0, -5), App.Rotation())
sketch19.addGeometry([
    Part.LineSegment(V(140, 0, 0), V(140, -16, 0)),
    Part.LineSegment(V(140, -16, 0), V(124, -16, 0)),
    Part.LineSegment(V(124, -16, 0), V(124, 0, 0)),
    Part.LineSegment(V(124, 0, 0), V(140, 0, 0)),
], False)
sketch19.addConstraint([
    Sketcher.Constraint("Coincident", 0, 2, 1, 1),
    Sketcher.Constraint("Coincident", 1, 2, 2, 1),
    Sketcher.Constraint("Coincident", 2, 2, 3, 1),
    Sketcher.Constraint("Coincident", 3, 2, 0, 1),
    Sketcher.Constraint("Vertical", 0),
    Sketcher.Constraint("Horizontal", 1),
    Sketcher.Constraint("Vertical", 2),
    Sketcher.Constraint("Horizontal", 3),
    Sketcher.Constraint("PointOnObject", 2, 2, -1),
    Sketcher.Constraint("Equal", 3, 0),
    Sketcher.Constraint("DistanceX", 1, 2, 1, 1, 16.0),
    Sketcher.Constraint("DistanceX", -1, 1, 0, 2, 140.0),
])
pad13 = body.newObject("PartDesign::Pad", "Pad012")
pad13.Profile = sketch19
pad13.Length = 90
pad13.Reversed = True

sketch20 = body.newObject("Sketcher::SketchObject", "Sketch019")
sketch20.AttachmentSupport = (doc.getObject("XZ_Plane"), [""])
sketch20.MapMode = "FlatFace"
sketch20.AttachmentOffset = App.Placement(V(0, 0, -5), App.Rotation())
sketch20.addGeometry([
    Part.LineSegment(V(-24, 0, 0), V(-24, -16, 0)),
    Part.LineSegment(V(-24, -16, 0), V(-40, -16, 0)),
    Part.LineSegment(V(-40, -16, 0), V(-40, 0, 0)),
    Part.LineSegment(V(-40, 0, 0), V(-24, 0, 0)),
], False)
sketch20.addConstraint([
    Sketcher.Constraint("Coincident", 0, 2, 1, 1),
    Sketcher.Constraint("Coincident", 1, 2, 2, 1),
    Sketcher.Constraint("Coincident", 2, 2, 3, 1),
    Sketcher.Constraint("Coincident", 3, 2, 0, 1),
    Sketcher.Constraint("Vertical", 0),
    Sketcher.Constraint("Horizontal", 1),
    Sketcher.Constraint("Vertical", 2),
    Sketcher.Constraint("Horizontal", 3),
    Sketcher.Constraint("PointOnObject", 2, 2, -1),
    Sketcher.Constraint("Equal", 3, 0),
    Sketcher.Constraint("DistanceX", 1, 2, 1, 1, 16.0),
    Sketcher.Constraint("DistanceX", 0, 2, -1, 1, 24.0),
])
pad14 = body.newObject("PartDesign::Pad", "Pad013")
pad14.Profile = sketch20
pad14.Length = 90
pad14.Reversed = True

sketch21 = body.newObject("Sketcher::SketchObject", "Sketch020")
sketch21.AttachmentSupport = (doc.getObject("XZ_Plane"), [""])
sketch21.MapMode = "FlatFace"
sketch21.AttachmentOffset = App.Placement(V(0, 0, -5), App.Rotation())
sketch21.addGeometry([
    Part.LineSegment(V(9.5, 0, 0), V(9.5, -4.8, 0)),
    Part.ArcOfCircle(Part.Circle(V(4.8, -4.8, 0), V(0, 0, 1), 4.8), math.radians(180), math.radians(360)),
    Part.LineSegment(V(0, -4.8, 0), V(0, 0, 0)),
    Part.LineSegment(V(0, 0, 0), V(9.5, 0, 0)),
], False)
sketch21.addConstraint([
    Sketcher.Constraint("Tangent", 0, 2, 1, 2),
    Sketcher.Constraint("Tangent", 1, 1, 2, 1),
    Sketcher.Constraint("Coincident", 2, 2, 3, 1),
    Sketcher.Constraint("Coincident", 3, 2, 0, 1),
    Sketcher.Constraint("Vertical", 0),
    Sketcher.Constraint("Vertical", 2),
    Sketcher.Constraint("Horizontal", 3),
    Sketcher.Constraint("Coincident", 2, 2, -1, 1),
    Sketcher.Constraint("Radius", 1, 4.75),
    Sketcher.Constraint("DistanceY", 0, 2, 0, 1, 4.75),
])
pad15 = body.newObject("PartDesign::Pad", "Pad014")
pad15.Profile = sketch21
pad15.Length = 22
pad15.Reversed = True

sketch22 = body.newObject("Sketcher::SketchObject", "Sketch021")
sketch22.AttachmentSupport = (doc.getObject("XY_Plane"), [""])
sketch22.MapMode = "FlatFace"
sketch22.AttachmentOffset = App.Placement(V(0, 0, -95.25), App.Rotation())
sketch22.addGeometry([
    Part.LineSegment(V(4.8, 27, 0), V(4.8, 5, 0)),
    Part.LineSegment(V(4.8, 5, 0), V(9.5, 5, 0)),
    Part.LineSegment(V(9.5, 5, 0), V(9.5, 27, 0)),
    Part.LineSegment(V(9.5, 27, 0), V(4.8, 27, 0)),
], False)
sketch22.addGeometry(Part.LineSegment(V(4.8, 27, 0), V(4.8, 5, 0)), True)
sketch22.addConstraint([
    Sketcher.Constraint("Coincident", 0, 2, 1, 1),
    Sketcher.Constraint("Coincident", 1, 2, 2, 1),
    Sketcher.Constraint("Coincident", 2, 2, 3, 1),
    Sketcher.Constraint("Coincident", 3, 2, 0, 1),
    Sketcher.Constraint("Vertical", 0),
    Sketcher.Constraint("Horizontal", 1),
    Sketcher.Constraint("Vertical", 2),
    Sketcher.Constraint("Horizontal", 3),
    Sketcher.Constraint("Vertical", 4),
    Sketcher.Constraint("Coincident", 4, 1, 3, 2),
    Sketcher.Constraint("Horizontal", 1, 2, 4, 2),
    Sketcher.Constraint("DistanceY", 0, 2, 0, 1, 22.0),
    Sketcher.Constraint("DistanceY", -1, 1, 0, 2, 5.0),
    Sketcher.Constraint("DistanceX", 1, 1, 1, 2, 4.75),
    Sketcher.Constraint("DistanceX", -1, 1, 1, 2, 9.5),
])
revolution2 = body.newObject("PartDesign::Revolution", "Revolution001")
revolution2.Profile = sketch22
revolution2.ReferenceAxis = (sketch22, ["Axis0"])
revolution2.Angle = 360

sketch23 = body.newObject("Sketcher::SketchObject", "Sketch022")
sketch23.AttachmentSupport = (doc.getObject("XZ_Plane"), [""])
sketch23.MapMode = "FlatFace"
sketch23.AttachmentOffset = App.Placement(V(0, 0, -95), App.Rotation())
sketch23.addGeometry([
    Part.Circle(V(-34, -6, 0), V(0, 0, 1), 1.5),
    Part.Circle(V(134, -6, 0), V(0, 0, 1), 1.5),
    Part.Circle(V(134, -134, 0), V(0, 0, 1), 1.5),
    Part.Circle(V(-34, -134, 0), V(0, 0, 1), 1.5),
], False)
sketch23.addConstraint([
    Sketcher.Constraint("Equal", 0, 1),
    Sketcher.Constraint("Equal", 1, 2),
    Sketcher.Constraint("Equal", 2, 3),
    Sketcher.Constraint("Horizontal", 0, 3, 1, 3),
    Sketcher.Constraint("Horizontal", 2, 3, 3, 3),
    Sketcher.Constraint("Vertical", 1, 3, 2, 3),
    Sketcher.Constraint("Vertical", 0, 3, 3, 3),
    Sketcher.Constraint("Diameter", 0, 3.0),
    Sketcher.Constraint("DistanceX", 0, 3, -1, 1, 34.0),
    Sketcher.Constraint("DistanceY", 0, 3, -1, 1, 6.0),
    Sketcher.Constraint("DistanceX", -1, 1, 1, 3, 134.0),
    Sketcher.Constraint("DistanceY", 2, 3, -1, 1, 134.0),
])
doc.recompute()
hole = body.newObject("PartDesign::Hole", "Hole")
hole.Profile = sketch23
hole.ThreadType = "None"
hole.Diameter = 3
hole.DepthType = "Dimension"
hole.Depth = 15
hole.DrillPoint = "Angled"
hole.DrillPointAngle = 118
hole.Reversed = True

sketch24 = body.newObject("Sketcher::SketchObject", "Sketch023")
sketch24.AttachmentSupport = (doc.getObject("XZ_Plane"), [""])
sketch24.MapMode = "FlatFace"
sketch24.AttachmentOffset = App.Placement(V(0, 0, -27), App.Rotation())
sketch24.addGeometry([
    Part.Circle(V(95.2, -4.8, 0), V(0, 0, 1), 1.5),
    Part.Circle(V(4.8, -4.8, 0), V(0, 0, 1), 1.5),
    Part.Circle(V(4.8, -95.2, 0), V(0, 0, 1), 1.5),
], False)
sketch24.addConstraint([
    Sketcher.Constraint("Equal", 0, 1),
    Sketcher.Constraint("Equal", 1, 2),
    Sketcher.Constraint("Horizontal", 0, 3, 1, 3),
    Sketcher.Constraint("Vertical", 1, 3, 2, 3),
    Sketcher.Constraint("Diameter", 0, 3.0),
    Sketcher.Constraint("DistanceX", 1, 3, 0, 3, 90.5),
    Sketcher.Constraint("DistanceY", 2, 3, 1, 3, 90.5),
    Sketcher.Constraint("DistanceX", -1, 1, 0, 3, 95.25),
    Sketcher.Constraint("DistanceY", 0, 3, -1, 1, 4.75),
])
doc.recompute()
hole2 = body.newObject("PartDesign::Hole", "Hole001")
hole2.Profile = sketch24
hole2.ThreadType = "None"
hole2.Diameter = 3
hole2.DepthType = "Dimension"
hole2.Depth = 15
hole2.DrillPoint = "Angled"
hole2.DrillPointAngle = 118
hole2.Reversed = True

sketch25 = body.newObject("Sketcher::SketchObject", "Sketch024")
sketch25.AttachmentSupport = (doc.getObject("XY_Plane"), [""])
sketch25.MapMode = "FlatFace"
sketch25.AttachmentOffset = App.Placement(V(0, 0, 4), App.Rotation())
sketch25.addGeometry(Part.Circle(V(6, 79.5, 0), V(0, 0, 1), 3.1), False)
sketch25.addConstraint([
    Sketcher.Constraint("Diameter", 0, 6.25),
    Sketcher.Constraint("DistanceX", -1, 1, 0, 3, 6.0),
    Sketcher.Constraint("DistanceY", -1, 1, 0, 3, 79.5),
])
doc.recompute()
hole3 = body.newObject("PartDesign::Hole", "Hole002")
hole3.Profile = sketch25
hole3.ThreadType = "None"
hole3.Diameter = 6.25
hole3.DepthType = "Dimension"
hole3.Depth = 4
hole3.DrillPoint = "Flat"
doc.recompute()

chamfer = body.newObject("PartDesign::Chamfer", "Chamfer")
chamfer.Base = (hole3, edges_at(hole3, [
    (-32.5, 95, -134),
    (135.5, 95, -134),
    (135.5, 95, -6),
    (-32.5, 95, -6),
    (6.25, 27, -95.25),
    (6.25, 27, -4.75),
    (96.75, 27, -4.75),
]))
chamfer.Size = 0.025
doc.recompute()

fillet = body.newObject("PartDesign::Fillet", "Fillet")
fillet.Base = (chamfer, edges_at(chamfer, [(92, 32, 2), (40, 32, 2), (40, 26, 2)]))
fillet.Radius = 2
doc.recompute()

fillet2 = body.newObject("PartDesign::Fillet", "Fillet001")
fillet2.Base = (fillet, edges_at(fillet, [
    (-40, 97.5, -140),
    (-44, 50, 4),
    (-44, 50, -144),
    (144, 50, -144),
    (144, 20, -70),
    (144, 10, -82.5),
    (144, 10, -57.5),
    (-44, 20, -70),
    (-44, 10, -57.5),
    (-44, 10, -82.5),
    (-24, 50, -124),
    (140, 97.5, -140),
    (124, 50, -124),
    (140, 97.5, 0),
    (124, 50, -16),
    (-24, 50, -16),
    (-40, 97.5, 0),
    (144, 50, 4),
]))
fillet2.Radius = 10

sketch26 = body.newObject("Sketcher::SketchObject", "Sketch025")
sketch26.AttachmentSupport = (doc.getObject("XY_Plane"), [""])
sketch26.MapMode = "FlatFace"
sketch26.AttachmentOffset = App.Placement(V(0, 0, -95.25), App.Rotation())
sketch26.addGeometry([
    Part.LineSegment(V(95.2, 27, 0), V(95.2, 5, 0)),
    Part.LineSegment(V(95.2, 5, 0), V(100, 5, 0)),
    Part.LineSegment(V(100, 5, 0), V(100, 27, 0)),
    Part.LineSegment(V(100, 27, 0), V(95.2, 27, 0)),
], False)
sketch26.addGeometry(Part.LineSegment(V(95.2, 27, 0), V(95.2, 5, 0)), True)
sketch26.addConstraint([
    Sketcher.Constraint("Coincident", 0, 2, 1, 1),
    Sketcher.Constraint("Coincident", 1, 2, 2, 1),
    Sketcher.Constraint("Coincident", 2, 2, 3, 1),
    Sketcher.Constraint("Coincident", 3, 2, 0, 1),
    Sketcher.Constraint("Vertical", 0),
    Sketcher.Constraint("Horizontal", 1),
    Sketcher.Constraint("Vertical", 2),
    Sketcher.Constraint("Horizontal", 3),
    Sketcher.Constraint("Vertical", 4),
    Sketcher.Constraint("Coincident", 4, 1, 3, 2),
    Sketcher.Constraint("Horizontal", 1, 2, 4, 2),
    Sketcher.Constraint("DistanceY", 0, 2, 0, 1, 22.0),
    Sketcher.Constraint("DistanceY", -1, 1, 0, 2, 5.0),
    Sketcher.Constraint("DistanceX", -1, 1, 1, 2, 100.0),
    Sketcher.Constraint("DistanceX", 1, 1, 1, 2, 4.75),
])
revolution3 = body.newObject("PartDesign::Revolution", "Revolution002")
revolution3.Profile = sketch26
revolution3.ReferenceAxis = (sketch26, ["Axis0"])
revolution3.Angle = 360

sketch27 = body.newObject("Sketcher::SketchObject", "Sketch026")
sketch27.AttachmentSupport = (doc.getObject("XY_Plane"), [""])
sketch27.MapMode = "FlatFace"
sketch27.AttachmentOffset = App.Placement(V(0, 0, -95.25), App.Rotation())
sketch27.addGeometry([
    Part.LineSegment(V(96.775, 27, 0), V(95.25, 27, 0)),
    Part.LineSegment(V(95.25, 27, 0), V(95.25, 11.099, 0)),
    Part.LineSegment(V(95.25, 11.099, 0), V(96.75, 12, 0)),
    Part.LineSegment(V(96.75, 12, 0), V(96.75, 26.975, 0)),
    Part.LineSegment(V(96.75, 26.975, 0), V(96.775, 27, 0)),
], False)
sketch27.addGeometry(Part.LineSegment(V(95.25, 27, 0), V(95.25, 11.099, 0)), True)
sketch27.addConstraint([
    Sketcher.Constraint("Coincident", 0, 2, 1, 1),
    Sketcher.Constraint("Coincident", 1, 2, 2, 1),
    Sketcher.Constraint("Coincident", 2, 2, 3, 1),
    Sketcher.Constraint("Coincident", 3, 2, 4, 1),
    Sketcher.Constraint("Coincident", 4, 2, 0, 1),
    Sketcher.Constraint("Horizontal", 0),
    Sketcher.Constraint("Vertical", 1),
    Sketcher.Constraint("Vertical", 3),
    Sketcher.Constraint("Vertical", 5),
    Sketcher.Constraint("Coincident", 5, 1, 0, 2),
    Sketcher.Constraint("Equal", 1, 5),
    Sketcher.Constraint("Angle", 2, Q("31 deg")),
    Sketcher.Constraint("Angle", 4, Q("45 deg")),
    Sketcher.Constraint("DistanceY", -1, 1, 0, 2, 27.0),
    Sketcher.Constraint("DistanceY", -1, 1, 2, 2, 12.0),
    Sketcher.Constraint("DistanceX", 1, 2, 2, 2, 1.5),
    Sketcher.Constraint("DistanceX", 0, 2, 0, 1, 1.525),
    Sketcher.Constraint("DistanceX", -1, 1, 0, 2, 95.25),
])
groove = body.newObject("PartDesign::Groove", "Groove")
groove.Profile = sketch27
groove.ReferenceAxis = (sketch27, ["Axis0"])
groove.Angle = 360
doc.recompute()

fillet3 = body.newObject("PartDesign::Fillet", "Fillet002")
fillet3.Base = (groove, edges_at(groove, [
    (100, 5, -2.375),
    (95.25, 5, -9.5),
    (90.5, 5, -2.375),
    (4.75, 5, -9.5),
    (0, 5, -2.375),
    (9.5, 5, -2.375),
    (4.75, 5, -90.5),
    (95.25, 5, -90.5),
]))
fillet3.Radius = 2

sketch28 = body.newObject("Sketcher::SketchObject", "Sketch027")
sketch28.AttachmentSupport = (doc.getObject("XY_Plane"), [""])
sketch28.MapMode = "FlatFace"
sketch28.AttachmentOffset = App.Placement(V(0, 0, 4), App.Rotation())
sketch28.addGeometry([
    Part.LineSegment(V(40, 32, 0), V(40, 26, 0)),
    Part.LineSegment(V(40, 26, 0), V(92, 26, 0)),
    Part.LineSegment(V(92, 26, 0), V(92, 32, 0)),
    Part.LineSegment(V(92, 32, 0), V(40, 32, 0)),
], False)
sketch28.addConstraint([
    Sketcher.Constraint("Coincident", 0, 2, 1, 1),
    Sketcher.Constraint("Coincident", 1, 2, 2, 1),
    Sketcher.Constraint("Coincident", 2, 2, 3, 1),
    Sketcher.Constraint("Coincident", 3, 2, 0, 1),
    Sketcher.Constraint("Vertical", 0),
    Sketcher.Constraint("Horizontal", 1),
    Sketcher.Constraint("Vertical", 2),
    Sketcher.Constraint("Horizontal", 3),
    Sketcher.Constraint("DistanceX", 1, 1, 1, 2, 52.0),
    Sketcher.Constraint("DistanceY", 0, 2, 0, 1, 6.0),
    Sketcher.Constraint("DistanceX", -1, 1, 0, 2, 40.0),
    Sketcher.Constraint("DistanceY", -1, 1, 0, 2, 26.0),
])
pad16 = body.newObject("PartDesign::Pad", "Pad015")
pad16.Profile = sketch28
pad16.Length = 4
pad16.Reversed = True

sketch29 = body.newObject("Sketcher::SketchObject", "Sketch028")
sketch29.AttachmentSupport = (doc.getObject("XZ_Plane"), [""])
sketch29.MapMode = "FlatFace"
sketch29.AttachmentOffset = App.Placement(V(0, 0, -27), App.Rotation())
sketch29.addGeometry([
    Part.Circle(V(4.8, -95.2, 0), V(0, 0, 1), 4.8),
    Part.Circle(V(4.8, -95.2, 0), V(0, 0, 1), 1.5),
    Part.Circle(V(95.2, -95.2, 0), V(0, 0, 1), 4.8),
    Part.Circle(V(95.2, -95.2, 0), V(0, 0, 1), 1.5),
    Part.LineSegment(V(9.5, 0, 0), V(9.5, -4.8, 0)),
    Part.ArcOfCircle(Part.Circle(V(4.8, -4.8, 0), V(0, 0, 1), 4.8), math.radians(180), math.radians(360)),
    Part.LineSegment(V(0, -4.8, 0), V(0, 0, 0)),
    Part.LineSegment(V(0, 0, 0), V(9.5, 0, 0)),
    Part.Circle(V(4.8, -4.8, 0), V(0, 0, 1), 1.5),
    Part.LineSegment(V(100, 0, 0), V(100, -4.8, 0)),
    Part.ArcOfCircle(Part.Circle(V(95.2, -4.8, 0), V(0, 0, 1), 4.8), math.radians(180), math.radians(360)),
    Part.LineSegment(V(90.5, -4.8, 0), V(90.5, 0, 0)),
    Part.LineSegment(V(90.5, 0, 0), V(100, 0, 0)),
    Part.Circle(V(95.2, -4.8, 0), V(0, 0, 1), 1.5),
], False)
sketch29.addConstraint([
    Sketcher.Constraint("Tangent", 4, 2, 5, 2),
    Sketcher.Constraint("Tangent", 5, 1, 6, 1),
    Sketcher.Constraint("Coincident", 6, 2, 7, 1),
    Sketcher.Constraint("Coincident", 7, 2, 4, 1),
    Sketcher.Constraint("Tangent", 9, 2, 10, 2),
    Sketcher.Constraint("Tangent", 10, 1, 11, 1),
    Sketcher.Constraint("Coincident", 11, 2, 12, 1),
    Sketcher.Constraint("Coincident", 12, 2, 9, 1),
    Sketcher.Constraint("Vertical", 4),
    Sketcher.Constraint("Vertical", 6),
    Sketcher.Constraint("Horizontal", 7),
    Sketcher.Constraint("Vertical", 9),
    Sketcher.Constraint("Vertical", 11),
    Sketcher.Constraint("Horizontal", 12),
    Sketcher.Constraint("Coincident", 6, 2, -1, 1),
    Sketcher.Constraint("Coincident", 1, 3, 0, 3),
    Sketcher.Constraint("Coincident", 3, 3, 2, 3),
    Sketcher.Constraint("Coincident", 8, 3, 5, 3),
    Sketcher.Constraint("Coincident", 13, 3, 10, 3),
    Sketcher.Constraint("Equal", 0, 2),
    Sketcher.Constraint("Equal", 1, 3),
    Sketcher.Constraint("Equal", 2, 5),
    Sketcher.Constraint("Equal", 3, 8),
    Sketcher.Constraint("Equal", 5, 10),
    Sketcher.Constraint("Equal", 8, 13),
    Sketcher.Constraint("PointOnObject", 11, 2, -1),
    Sketcher.Constraint("Horizontal", 1, 3, 2, 3),
    Sketcher.Constraint("Horizontal", 8, 3, 10, 3),
    Sketcher.Constraint("Vertical", 1, 3, 5, 3),
    Sketcher.Constraint("Vertical", 3, 3, 10, 3),
    Sketcher.Constraint("Diameter", 0, 9.5),
    Sketcher.Constraint("Diameter", 1, 3.05),
    Sketcher.Constraint("DistanceX", -1, 1, 9, 2, 100.0),
    Sketcher.Constraint("DistanceY", 4, 2, 4, 1, 4.75),
    Sketcher.Constraint("DistanceY", 0, 3, 5, 3, 90.5),
])
pad17 = body.newObject("PartDesign::Pad", "Pad016")
pad17.Profile = sketch29
pad17.Length = 10
pad17.Midplane = True

doc.recompute()
